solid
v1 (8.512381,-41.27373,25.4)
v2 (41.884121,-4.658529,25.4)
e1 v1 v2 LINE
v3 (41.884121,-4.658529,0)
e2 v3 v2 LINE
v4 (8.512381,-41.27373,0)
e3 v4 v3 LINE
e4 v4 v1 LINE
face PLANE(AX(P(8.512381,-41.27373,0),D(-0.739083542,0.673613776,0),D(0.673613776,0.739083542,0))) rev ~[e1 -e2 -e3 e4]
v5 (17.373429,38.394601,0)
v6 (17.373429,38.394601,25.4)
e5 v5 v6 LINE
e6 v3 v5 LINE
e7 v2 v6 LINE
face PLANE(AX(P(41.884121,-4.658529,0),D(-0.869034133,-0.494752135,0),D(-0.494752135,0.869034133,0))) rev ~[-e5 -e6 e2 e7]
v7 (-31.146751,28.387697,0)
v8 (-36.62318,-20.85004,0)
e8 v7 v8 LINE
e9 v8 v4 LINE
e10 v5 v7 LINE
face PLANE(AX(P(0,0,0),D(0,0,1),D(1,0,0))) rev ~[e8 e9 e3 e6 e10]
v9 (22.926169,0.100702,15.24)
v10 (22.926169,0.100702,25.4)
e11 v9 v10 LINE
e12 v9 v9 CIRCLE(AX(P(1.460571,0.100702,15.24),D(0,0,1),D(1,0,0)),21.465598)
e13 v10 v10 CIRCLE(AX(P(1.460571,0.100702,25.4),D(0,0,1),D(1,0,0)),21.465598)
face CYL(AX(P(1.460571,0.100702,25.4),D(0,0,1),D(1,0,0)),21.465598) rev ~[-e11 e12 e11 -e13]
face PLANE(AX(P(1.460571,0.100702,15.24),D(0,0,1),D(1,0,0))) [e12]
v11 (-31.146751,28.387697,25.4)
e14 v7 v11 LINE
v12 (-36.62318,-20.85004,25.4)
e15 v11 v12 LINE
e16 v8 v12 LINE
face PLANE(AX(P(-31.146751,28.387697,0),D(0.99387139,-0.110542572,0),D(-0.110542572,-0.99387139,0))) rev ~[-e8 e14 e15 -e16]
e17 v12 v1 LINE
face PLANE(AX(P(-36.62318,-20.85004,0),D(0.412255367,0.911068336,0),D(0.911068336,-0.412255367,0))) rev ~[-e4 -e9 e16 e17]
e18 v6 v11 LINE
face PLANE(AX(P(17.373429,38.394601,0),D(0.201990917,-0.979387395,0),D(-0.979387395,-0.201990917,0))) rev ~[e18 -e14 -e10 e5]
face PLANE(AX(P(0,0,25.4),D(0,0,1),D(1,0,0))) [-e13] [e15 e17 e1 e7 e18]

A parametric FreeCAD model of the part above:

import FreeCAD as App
import Part
import Sketcher
Q = App.Units.Quantity


def add_polygon(sketch, points):
    """Adds a closed chain of lines whose ends are joined by coincident constraints."""
    first, n = sketch.GeometryCount, len(points)
    for a, b in zip(points, points[1:] + points[:1]):
        sketch.addGeometry(Part.LineSegment(App.Vector(*a, 0), App.Vector(*b, 0)), False)
    for i in range(n):
        sketch.addConstraint(Sketcher.Constraint("Coincident", first + i, 2, first + (i + 1) % n, 1))

doc = App.newDocument("Part")
body = doc.addObject("PartDesign::Body", "Body")

# Sketch on XY plane
sketch1 = doc.addObject("Sketcher::SketchObject", "Sketch")
body.addObject(sketch1)
sketch1.AttachmentSupport = (doc.XY_Plane, [""])
sketch1.MapMode = "FlatFace"
add_polygon(sketch1, [(8.512381, -41.27373), (41.884121, -4.658529), (17.373429, 38.394601), (-31.146751, 28.387697), (-36.62318, -20.85004)])  # lines 0-4
sketch1.addConstraint([
    Sketcher.Constraint("Equal", 0, 1),
    Sketcher.Constraint("Equal", 1, 2),
    Sketcher.Constraint("Equal", 2, 3),
    Sketcher.Constraint("Equal", 3, 4),
    Sketcher.Constraint("DistanceY", -1, 1, 1, 2, Q("38.394601 mm")),
    Sketcher.Constraint("DistanceX", 3, 2, 0, 2, Q("78.507301 mm")),
    Sketcher.Constraint("DistanceY", 4, 2, 0, 2, Q("36.615201 mm")),
    Sketcher.Constraint("DistanceX", -1, 1, 0, 2, Q("41.884121 mm")),
    Sketcher.Constraint("DistanceY", 0, 2, -1, 1, Q("4.658529 mm")),
    Sketcher.Constraint("DistanceX", -1, 1, 1, 2, Q("17.373429 mm")),
])
pad1 = doc.addObject("PartDesign::Pad", "Pad")
body.addObject(pad1)
pad1.Profile = sketch1
pad1.Length = Q("1 in")

# Sketch on XY plane
sketch2 = doc.addObject("Sketcher::SketchObject", "Sketch001")
body.addObject(sketch2)
sketch2.AttachmentSupport = (doc.XY_Plane, [""])
sketch2.MapMode = "FlatFace"
sketch2.AttachmentOffset = App.Placement(App.Vector(0, 0, 1 * 25.4), App.Rotation())
sketch2.addGeometry(Part.Circle(App.Vector(1.460571, 0.100702, 0), App.Vector(0, 0, 1), 21.465598), False)
sketch2.addConstraint([
    Sketcher.Constraint("Diameter", 0, Q("42.931196 mm")),
    Sketcher.Constraint("DistanceX", -1, 1, 0, 3, Q("1.460571 mm")),
    Sketcher.Constraint("DistanceY", -1, 1, 0, 3, Q("0.100702 mm")),
])
pocket1 = doc.addObject("PartDesign::Pocket", "Pocket")
body.addObject(pocket1)
pocket1.Profile = sketch2
pocket1.Length = Q("0.8 in")
pocket1.Midplane = True

doc.recompute()
